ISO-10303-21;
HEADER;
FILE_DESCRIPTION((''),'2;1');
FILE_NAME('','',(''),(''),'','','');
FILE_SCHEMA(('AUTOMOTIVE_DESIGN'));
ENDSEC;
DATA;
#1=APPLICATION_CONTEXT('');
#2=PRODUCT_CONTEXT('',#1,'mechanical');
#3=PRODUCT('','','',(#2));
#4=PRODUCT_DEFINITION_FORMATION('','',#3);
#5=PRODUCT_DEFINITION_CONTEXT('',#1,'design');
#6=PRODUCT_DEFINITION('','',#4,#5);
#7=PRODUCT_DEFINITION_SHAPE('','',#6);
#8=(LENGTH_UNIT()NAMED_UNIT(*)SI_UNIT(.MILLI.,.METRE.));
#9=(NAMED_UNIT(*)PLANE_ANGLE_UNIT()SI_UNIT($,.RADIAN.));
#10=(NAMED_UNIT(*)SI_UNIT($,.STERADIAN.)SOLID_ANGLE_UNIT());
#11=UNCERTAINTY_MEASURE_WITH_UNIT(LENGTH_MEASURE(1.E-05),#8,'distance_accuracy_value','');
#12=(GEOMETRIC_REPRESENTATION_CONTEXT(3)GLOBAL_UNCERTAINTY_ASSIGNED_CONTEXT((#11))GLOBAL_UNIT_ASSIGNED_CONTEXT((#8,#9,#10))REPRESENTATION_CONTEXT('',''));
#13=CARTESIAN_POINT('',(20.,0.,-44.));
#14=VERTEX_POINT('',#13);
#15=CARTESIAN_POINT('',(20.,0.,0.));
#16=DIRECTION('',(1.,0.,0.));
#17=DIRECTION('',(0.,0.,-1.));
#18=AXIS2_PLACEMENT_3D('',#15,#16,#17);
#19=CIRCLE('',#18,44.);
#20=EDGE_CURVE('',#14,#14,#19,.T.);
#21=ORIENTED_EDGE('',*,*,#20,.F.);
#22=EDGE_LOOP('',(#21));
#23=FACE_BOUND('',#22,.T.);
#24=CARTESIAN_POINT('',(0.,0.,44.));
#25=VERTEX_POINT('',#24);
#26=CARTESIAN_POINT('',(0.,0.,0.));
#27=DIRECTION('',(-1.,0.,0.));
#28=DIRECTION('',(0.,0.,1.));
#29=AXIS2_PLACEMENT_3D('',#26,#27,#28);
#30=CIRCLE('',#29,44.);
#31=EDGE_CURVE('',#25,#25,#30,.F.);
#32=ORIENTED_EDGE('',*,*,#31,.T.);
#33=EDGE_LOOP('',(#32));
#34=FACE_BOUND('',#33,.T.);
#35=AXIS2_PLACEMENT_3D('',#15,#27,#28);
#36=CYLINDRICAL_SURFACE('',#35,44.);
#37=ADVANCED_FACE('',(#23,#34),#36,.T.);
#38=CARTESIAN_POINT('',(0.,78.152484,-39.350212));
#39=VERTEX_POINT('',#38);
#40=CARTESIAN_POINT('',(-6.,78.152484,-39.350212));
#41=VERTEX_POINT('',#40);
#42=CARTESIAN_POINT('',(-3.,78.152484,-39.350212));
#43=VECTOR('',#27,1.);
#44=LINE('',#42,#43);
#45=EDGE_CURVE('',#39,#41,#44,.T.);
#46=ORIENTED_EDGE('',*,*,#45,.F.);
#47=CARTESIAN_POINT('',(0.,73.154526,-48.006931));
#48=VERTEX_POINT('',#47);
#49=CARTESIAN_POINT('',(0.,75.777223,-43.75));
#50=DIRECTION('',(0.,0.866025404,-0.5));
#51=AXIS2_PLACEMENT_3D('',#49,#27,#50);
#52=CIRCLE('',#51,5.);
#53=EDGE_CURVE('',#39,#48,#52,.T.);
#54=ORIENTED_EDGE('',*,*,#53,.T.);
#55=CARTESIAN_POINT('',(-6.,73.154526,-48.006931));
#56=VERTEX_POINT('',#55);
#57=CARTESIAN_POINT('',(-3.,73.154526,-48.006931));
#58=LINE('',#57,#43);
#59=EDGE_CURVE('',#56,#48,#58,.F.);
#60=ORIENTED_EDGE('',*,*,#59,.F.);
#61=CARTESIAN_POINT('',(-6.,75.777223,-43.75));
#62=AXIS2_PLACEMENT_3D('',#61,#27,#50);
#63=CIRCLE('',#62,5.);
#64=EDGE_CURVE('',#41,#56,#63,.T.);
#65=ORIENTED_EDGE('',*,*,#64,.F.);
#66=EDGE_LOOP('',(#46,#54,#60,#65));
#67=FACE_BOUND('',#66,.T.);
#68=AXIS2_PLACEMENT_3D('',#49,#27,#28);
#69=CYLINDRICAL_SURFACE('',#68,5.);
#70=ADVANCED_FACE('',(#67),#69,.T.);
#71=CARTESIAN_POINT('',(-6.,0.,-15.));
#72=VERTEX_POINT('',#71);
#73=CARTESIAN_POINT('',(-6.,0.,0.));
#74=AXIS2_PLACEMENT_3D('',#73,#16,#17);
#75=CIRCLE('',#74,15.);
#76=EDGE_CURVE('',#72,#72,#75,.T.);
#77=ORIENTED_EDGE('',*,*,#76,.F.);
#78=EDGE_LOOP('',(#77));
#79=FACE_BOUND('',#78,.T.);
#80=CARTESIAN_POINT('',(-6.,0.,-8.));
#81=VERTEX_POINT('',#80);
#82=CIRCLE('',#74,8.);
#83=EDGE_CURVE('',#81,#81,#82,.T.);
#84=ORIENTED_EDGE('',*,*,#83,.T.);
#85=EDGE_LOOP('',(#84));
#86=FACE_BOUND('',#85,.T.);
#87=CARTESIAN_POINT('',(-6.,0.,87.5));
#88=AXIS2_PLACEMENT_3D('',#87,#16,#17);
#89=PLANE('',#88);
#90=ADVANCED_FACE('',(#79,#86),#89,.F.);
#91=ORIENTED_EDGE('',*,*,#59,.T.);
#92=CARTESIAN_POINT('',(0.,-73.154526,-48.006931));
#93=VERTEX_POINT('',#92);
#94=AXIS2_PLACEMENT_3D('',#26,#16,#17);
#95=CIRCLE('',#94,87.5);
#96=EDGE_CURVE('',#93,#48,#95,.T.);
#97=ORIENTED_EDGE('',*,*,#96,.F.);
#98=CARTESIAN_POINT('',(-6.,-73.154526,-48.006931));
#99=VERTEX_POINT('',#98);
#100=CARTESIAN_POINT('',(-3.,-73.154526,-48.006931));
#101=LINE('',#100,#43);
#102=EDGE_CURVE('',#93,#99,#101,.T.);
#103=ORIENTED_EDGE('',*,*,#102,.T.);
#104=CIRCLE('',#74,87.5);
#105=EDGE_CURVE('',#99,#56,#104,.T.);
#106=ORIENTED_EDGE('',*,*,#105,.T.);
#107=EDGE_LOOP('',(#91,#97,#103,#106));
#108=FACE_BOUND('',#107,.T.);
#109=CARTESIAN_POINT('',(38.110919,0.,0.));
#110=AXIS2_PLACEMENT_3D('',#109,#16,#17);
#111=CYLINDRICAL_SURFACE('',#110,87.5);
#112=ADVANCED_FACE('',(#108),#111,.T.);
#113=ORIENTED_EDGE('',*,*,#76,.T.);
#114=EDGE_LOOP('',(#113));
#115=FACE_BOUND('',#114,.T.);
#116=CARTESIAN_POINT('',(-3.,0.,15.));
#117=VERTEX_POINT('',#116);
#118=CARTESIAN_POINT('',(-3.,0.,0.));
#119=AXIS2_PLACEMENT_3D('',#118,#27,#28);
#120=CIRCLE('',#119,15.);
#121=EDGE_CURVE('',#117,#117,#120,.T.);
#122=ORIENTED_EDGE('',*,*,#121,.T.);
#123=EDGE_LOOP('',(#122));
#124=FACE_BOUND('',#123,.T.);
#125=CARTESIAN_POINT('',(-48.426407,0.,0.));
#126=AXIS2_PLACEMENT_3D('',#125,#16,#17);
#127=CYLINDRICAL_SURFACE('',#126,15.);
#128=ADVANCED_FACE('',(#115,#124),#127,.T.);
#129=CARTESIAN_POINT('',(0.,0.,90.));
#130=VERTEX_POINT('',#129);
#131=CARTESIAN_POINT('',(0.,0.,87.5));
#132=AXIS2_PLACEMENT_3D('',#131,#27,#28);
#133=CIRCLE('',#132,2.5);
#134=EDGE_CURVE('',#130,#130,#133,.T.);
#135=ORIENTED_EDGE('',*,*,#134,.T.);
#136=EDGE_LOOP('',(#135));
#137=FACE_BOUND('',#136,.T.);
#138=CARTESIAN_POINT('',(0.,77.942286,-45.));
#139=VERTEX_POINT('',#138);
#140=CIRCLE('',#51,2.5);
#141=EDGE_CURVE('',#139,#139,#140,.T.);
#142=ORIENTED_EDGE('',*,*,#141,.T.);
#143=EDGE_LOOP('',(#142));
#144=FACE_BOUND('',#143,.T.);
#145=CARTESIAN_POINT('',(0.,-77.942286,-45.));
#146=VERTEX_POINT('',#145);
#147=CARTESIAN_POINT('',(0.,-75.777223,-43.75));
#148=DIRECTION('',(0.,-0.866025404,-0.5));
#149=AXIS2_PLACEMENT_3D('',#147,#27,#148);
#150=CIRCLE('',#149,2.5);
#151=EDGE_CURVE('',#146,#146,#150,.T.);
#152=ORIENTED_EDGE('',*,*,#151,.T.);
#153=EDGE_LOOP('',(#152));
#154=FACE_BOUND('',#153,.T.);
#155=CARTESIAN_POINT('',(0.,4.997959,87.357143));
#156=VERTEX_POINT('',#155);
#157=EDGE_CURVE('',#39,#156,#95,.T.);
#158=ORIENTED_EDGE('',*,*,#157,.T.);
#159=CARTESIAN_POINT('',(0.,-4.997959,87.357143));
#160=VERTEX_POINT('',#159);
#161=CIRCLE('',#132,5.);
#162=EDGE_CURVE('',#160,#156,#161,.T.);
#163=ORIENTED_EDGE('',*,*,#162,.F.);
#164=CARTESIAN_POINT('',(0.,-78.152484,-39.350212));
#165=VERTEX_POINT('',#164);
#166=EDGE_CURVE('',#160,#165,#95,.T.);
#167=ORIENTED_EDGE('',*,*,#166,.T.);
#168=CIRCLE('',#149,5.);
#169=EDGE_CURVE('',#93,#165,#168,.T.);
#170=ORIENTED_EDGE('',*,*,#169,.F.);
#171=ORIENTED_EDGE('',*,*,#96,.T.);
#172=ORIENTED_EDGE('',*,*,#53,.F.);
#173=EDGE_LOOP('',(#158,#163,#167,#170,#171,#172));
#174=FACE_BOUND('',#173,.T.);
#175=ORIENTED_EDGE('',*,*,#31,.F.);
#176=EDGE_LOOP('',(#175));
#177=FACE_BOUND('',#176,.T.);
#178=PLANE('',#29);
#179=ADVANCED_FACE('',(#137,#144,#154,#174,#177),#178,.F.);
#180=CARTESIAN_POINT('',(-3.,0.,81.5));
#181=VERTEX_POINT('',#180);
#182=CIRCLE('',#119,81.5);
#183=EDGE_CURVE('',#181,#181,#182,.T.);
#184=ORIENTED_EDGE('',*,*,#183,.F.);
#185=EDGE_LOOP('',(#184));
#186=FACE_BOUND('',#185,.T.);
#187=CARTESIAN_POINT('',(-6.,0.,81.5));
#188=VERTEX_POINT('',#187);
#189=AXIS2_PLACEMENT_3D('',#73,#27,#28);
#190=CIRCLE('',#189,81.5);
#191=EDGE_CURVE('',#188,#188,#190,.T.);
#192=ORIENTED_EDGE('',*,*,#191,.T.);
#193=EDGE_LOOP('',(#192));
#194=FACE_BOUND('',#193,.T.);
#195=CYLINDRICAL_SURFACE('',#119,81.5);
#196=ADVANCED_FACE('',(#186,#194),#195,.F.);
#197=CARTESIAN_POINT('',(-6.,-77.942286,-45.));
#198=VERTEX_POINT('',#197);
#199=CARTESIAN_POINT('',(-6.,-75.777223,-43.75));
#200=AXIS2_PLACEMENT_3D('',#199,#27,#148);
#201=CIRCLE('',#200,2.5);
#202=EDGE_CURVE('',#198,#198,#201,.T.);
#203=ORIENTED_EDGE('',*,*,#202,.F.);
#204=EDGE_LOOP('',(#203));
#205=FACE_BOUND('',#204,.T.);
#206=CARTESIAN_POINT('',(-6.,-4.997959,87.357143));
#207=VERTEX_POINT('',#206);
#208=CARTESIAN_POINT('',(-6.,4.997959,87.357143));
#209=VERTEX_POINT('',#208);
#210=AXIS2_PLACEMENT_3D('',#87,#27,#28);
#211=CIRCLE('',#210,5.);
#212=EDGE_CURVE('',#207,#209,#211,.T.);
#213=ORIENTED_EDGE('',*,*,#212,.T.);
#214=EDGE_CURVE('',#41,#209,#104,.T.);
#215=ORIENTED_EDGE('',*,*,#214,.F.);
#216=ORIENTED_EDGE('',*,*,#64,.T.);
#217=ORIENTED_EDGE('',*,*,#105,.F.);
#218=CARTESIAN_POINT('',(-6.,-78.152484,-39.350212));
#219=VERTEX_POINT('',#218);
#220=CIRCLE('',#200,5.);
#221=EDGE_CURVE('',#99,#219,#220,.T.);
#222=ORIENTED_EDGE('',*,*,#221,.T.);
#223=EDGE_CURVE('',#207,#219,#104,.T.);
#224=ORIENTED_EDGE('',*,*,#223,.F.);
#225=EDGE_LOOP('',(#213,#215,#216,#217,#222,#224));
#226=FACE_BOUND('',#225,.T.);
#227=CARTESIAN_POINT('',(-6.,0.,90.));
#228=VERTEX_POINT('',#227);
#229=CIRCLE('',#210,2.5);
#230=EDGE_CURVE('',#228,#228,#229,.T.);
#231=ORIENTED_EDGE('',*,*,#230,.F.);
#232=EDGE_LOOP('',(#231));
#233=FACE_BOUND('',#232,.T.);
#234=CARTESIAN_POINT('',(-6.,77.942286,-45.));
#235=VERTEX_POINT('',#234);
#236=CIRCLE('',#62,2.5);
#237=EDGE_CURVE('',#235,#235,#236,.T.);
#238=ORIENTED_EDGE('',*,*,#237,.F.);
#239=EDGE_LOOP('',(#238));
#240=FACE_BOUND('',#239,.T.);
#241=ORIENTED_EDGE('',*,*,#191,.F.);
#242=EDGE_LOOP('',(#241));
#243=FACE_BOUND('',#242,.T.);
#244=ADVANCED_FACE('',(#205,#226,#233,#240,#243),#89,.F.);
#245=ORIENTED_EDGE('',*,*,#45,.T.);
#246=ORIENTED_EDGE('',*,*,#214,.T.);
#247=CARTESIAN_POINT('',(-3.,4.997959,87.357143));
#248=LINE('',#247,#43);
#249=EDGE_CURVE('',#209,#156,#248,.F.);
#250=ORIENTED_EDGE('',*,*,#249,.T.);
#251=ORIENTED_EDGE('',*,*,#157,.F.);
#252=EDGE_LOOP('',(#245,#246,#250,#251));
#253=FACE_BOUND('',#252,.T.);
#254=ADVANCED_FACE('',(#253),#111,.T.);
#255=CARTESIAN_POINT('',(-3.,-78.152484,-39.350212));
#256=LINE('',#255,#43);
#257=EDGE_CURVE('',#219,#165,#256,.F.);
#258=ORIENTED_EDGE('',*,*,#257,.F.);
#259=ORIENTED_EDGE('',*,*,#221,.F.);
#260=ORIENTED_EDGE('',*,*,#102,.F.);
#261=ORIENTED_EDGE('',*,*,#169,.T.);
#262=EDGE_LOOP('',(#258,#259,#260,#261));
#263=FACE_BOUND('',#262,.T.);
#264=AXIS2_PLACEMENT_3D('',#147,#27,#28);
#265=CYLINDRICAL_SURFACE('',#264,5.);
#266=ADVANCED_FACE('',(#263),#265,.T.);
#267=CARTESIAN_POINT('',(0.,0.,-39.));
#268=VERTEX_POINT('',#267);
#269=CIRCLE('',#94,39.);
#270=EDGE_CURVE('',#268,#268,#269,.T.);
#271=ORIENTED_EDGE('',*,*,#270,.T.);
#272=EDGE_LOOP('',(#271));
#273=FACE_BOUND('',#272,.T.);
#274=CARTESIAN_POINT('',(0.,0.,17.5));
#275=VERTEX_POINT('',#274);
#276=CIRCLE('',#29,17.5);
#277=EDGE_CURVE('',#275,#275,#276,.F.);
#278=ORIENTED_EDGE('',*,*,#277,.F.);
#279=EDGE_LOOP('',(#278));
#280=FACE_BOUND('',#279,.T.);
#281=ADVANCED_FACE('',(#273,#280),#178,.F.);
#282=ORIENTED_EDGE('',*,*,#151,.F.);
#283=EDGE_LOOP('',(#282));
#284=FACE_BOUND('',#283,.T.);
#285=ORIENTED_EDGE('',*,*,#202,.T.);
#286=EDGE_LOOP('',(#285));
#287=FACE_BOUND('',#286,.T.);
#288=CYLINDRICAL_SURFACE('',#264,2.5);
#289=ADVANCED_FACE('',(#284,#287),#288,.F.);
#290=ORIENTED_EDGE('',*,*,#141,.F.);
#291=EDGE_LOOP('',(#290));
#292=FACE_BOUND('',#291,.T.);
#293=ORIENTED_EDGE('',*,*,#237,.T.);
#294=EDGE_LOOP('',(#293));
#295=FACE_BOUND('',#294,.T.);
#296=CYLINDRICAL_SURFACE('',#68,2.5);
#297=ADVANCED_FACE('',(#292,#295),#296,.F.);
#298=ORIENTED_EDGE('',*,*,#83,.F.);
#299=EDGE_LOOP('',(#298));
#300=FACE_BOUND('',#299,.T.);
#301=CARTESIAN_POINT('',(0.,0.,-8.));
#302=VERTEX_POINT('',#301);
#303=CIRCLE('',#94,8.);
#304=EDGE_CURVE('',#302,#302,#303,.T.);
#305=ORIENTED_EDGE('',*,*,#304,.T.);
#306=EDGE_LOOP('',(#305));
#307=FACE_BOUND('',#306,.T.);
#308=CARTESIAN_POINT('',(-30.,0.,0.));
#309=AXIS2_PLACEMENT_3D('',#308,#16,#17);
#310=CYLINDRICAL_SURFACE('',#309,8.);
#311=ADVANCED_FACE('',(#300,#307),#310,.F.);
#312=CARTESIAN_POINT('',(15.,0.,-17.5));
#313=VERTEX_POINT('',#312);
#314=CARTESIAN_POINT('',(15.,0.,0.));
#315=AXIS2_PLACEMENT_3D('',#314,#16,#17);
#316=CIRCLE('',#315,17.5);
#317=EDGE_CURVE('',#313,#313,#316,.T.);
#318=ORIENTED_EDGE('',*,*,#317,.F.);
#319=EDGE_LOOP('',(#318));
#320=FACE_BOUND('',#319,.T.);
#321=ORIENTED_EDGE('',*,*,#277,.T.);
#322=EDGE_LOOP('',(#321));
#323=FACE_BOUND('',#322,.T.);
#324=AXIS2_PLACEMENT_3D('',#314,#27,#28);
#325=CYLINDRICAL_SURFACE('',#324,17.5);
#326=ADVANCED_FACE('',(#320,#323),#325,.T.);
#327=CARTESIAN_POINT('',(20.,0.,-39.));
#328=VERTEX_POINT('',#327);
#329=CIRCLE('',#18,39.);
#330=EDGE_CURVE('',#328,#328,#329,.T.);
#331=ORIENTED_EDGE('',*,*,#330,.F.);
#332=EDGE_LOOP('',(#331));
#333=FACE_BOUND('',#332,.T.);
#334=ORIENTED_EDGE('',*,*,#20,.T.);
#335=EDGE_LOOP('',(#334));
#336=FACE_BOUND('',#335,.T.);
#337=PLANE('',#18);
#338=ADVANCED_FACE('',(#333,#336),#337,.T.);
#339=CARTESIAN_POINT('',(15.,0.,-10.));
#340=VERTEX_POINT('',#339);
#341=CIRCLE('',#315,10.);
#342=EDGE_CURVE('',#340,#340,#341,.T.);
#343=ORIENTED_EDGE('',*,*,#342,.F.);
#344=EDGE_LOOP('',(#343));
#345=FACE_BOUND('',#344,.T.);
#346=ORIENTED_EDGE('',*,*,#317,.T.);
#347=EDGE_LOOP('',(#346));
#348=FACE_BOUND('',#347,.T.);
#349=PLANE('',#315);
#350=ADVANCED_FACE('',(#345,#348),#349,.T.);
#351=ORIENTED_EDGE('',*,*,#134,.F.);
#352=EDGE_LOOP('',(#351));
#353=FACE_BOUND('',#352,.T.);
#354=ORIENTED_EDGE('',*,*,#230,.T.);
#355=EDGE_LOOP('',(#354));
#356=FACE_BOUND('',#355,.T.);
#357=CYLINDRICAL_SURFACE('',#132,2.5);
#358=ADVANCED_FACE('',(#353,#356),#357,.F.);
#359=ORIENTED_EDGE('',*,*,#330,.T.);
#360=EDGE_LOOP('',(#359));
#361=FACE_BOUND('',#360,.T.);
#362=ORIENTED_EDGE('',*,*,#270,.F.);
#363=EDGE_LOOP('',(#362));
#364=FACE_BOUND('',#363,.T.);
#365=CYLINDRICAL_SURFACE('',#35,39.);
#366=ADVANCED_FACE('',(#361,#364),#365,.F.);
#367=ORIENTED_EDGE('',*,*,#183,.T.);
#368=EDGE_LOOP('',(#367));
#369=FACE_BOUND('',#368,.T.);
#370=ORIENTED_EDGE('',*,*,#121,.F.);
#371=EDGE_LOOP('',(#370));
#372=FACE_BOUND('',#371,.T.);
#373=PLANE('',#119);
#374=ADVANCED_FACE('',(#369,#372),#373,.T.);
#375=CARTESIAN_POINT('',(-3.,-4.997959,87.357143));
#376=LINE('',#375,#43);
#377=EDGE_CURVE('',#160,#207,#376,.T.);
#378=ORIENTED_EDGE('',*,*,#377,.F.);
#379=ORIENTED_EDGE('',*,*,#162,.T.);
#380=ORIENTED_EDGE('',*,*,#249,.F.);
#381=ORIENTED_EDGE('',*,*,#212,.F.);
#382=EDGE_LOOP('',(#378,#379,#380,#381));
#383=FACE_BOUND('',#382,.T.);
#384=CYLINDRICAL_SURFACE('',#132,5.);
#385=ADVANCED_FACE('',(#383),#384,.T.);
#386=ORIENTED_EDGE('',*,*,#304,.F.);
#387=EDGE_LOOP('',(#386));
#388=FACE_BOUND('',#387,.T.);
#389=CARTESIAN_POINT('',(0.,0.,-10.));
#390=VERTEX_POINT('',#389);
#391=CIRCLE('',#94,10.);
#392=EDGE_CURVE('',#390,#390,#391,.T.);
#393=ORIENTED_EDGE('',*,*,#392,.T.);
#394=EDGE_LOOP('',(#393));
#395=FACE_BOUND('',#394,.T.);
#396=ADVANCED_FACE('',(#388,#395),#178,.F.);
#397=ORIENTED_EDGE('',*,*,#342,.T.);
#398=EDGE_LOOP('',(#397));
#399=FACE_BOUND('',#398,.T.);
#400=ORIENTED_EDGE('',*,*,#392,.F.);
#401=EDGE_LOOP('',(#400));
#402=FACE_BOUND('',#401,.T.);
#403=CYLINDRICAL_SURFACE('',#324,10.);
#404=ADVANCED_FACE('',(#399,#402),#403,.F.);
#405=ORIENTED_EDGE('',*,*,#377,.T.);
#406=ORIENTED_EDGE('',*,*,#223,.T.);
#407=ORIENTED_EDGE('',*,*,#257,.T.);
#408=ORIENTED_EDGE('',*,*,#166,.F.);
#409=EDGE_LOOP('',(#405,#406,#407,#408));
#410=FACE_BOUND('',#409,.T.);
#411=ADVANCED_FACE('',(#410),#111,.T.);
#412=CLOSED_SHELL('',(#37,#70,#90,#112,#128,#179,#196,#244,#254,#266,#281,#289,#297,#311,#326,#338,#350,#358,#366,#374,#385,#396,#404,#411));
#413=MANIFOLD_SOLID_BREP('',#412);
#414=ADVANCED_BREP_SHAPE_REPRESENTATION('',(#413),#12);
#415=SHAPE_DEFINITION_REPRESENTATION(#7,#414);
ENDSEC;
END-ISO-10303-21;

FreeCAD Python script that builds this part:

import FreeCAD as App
import Part
import Sketcher

V = App.Vector


def add_polygon(sketch, points):
    """Adds a closed chain of lines whose ends are joined by coincident constraints."""
    first, n = sketch.GeometryCount, len(points)
    for a, b in zip(points, points[1:] + points[:1]):
        sketch.addGeometry(Part.LineSegment(App.Vector(*a, 0), App.Vector(*b, 0)), False)
    for i in range(n):
        sketch.addConstraint(Sketcher.Constraint("Coincident", first + i, 2, first + (i + 1) % n, 1))

doc = App.newDocument("Part")
body = doc.addObject("PartDesign::Body", "Body")

sketch1 = body.newObject("Sketcher::SketchObject", "Sketch")
sketch1.AttachmentSupport = (doc.getObject("XZ_Plane"), [""])
sketch1.MapMode = "FlatFace"
add_polygon(sketch1, [(0, 88), (0, 0), (-6, 0), (-6, 88)])
sketch1.addConstraint(Sketcher.Constraint("Vertical", 0))
sketch1.addConstraint(Sketcher.Constraint("Horizontal", 1))
sketch1.addConstraint(Sketcher.Constraint("Vertical", 2))
sketch1.addConstraint(Sketcher.Constraint("Horizontal", 3))
sketch1.addConstraint(Sketcher.Constraint("Coincident", 0, 2, -1, 1))
sketch1.addConstraint(Sketcher.Constraint("DistanceX", 1, 2, 1, 1, 6.0))
sketch1.addConstraint(Sketcher.Constraint("DistanceY", 0, 2, 0, 1, 87.5))
revolution = body.newObject("PartDesign::Revolution", "Revolution")
revolution.Profile = sketch1
revolution.ReferenceAxis = (sketch1, ["H_Axis"])
revolution.Angle = 360

sketch2 = body.newObject("Sketcher::SketchObject", "Sketch001")
sketch2.AttachmentSupport = (doc.getObject("YZ_Plane"), [""])
sketch2.MapMode = "FlatFace"
sketch2.addGeometry(Part.Circle(V(0, 0, 0), V(0, 0, 1), 8), False)
sketch2.addConstraint(Sketcher.Constraint("Coincident", 0, 3, -1, 1))
sketch2.addConstraint(Sketcher.Constraint("Diameter", 0, 16.0))
pocket1 = body.newObject("PartDesign::Pocket", "Pocket")
pocket1.Profile = sketch2
pocket1.Length = 30

sketch3 = body.newObject("Sketcher::SketchObject", "Sketch002")
sketch3.AttachmentSupport = (doc.getObject("YZ_Plane"), [""])
sketch3.MapMode = "FlatFace"
sketch3.AttachmentOffset = App.Placement(V(0, 0, -6), App.Rotation())
sketch3.addGeometry(Part.Circle(V(0, 88, 0), V(0, 0, 1), 5), False)
sketch3.addConstraint(Sketcher.Constraint("PointOnObject", 0, 3, -2))
sketch3.addConstraint(Sketcher.Constraint("Diameter", 0, 10.0))
sketch3.addConstraint(Sketcher.Constraint("DistanceY", -1, 1, 0, 3, 87.5))
pad1 = body.newObject("PartDesign::Pad", "Pad")
pad1.Profile = sketch3
pad1.Length = 6
doc.recompute()

polarpattern = body.newObject("PartDesign::PolarPattern", "PolarPattern")
polarpattern.Originals = [pad1]
polarpattern.Axis = (doc.getObject("X_Axis"), [""])
polarpattern.Angle = 360
polarpattern.Occurrences = 3
body.Tip = polarpattern

sketch4 = body.newObject("Sketcher::SketchObject", "Sketch003")
sketch4.AttachmentSupport = (doc.getObject("YZ_Plane"), [""])
sketch4.MapMode = "FlatFace"
sketch4.AttachmentOffset = App.Placement(V(0, 0, -6), App.Rotation())
sketch4.addGeometry(Part.Circle(V(0, 87.5, 0), V(0, 0, 1), 2.5), False)
sketch4.addConstraint(Sketcher.Constraint("PointOnObject", 0, 3, -2))
sketch4.addConstraint(Sketcher.Constraint("Diameter", 0, 5.0))
sketch4.addConstraint(Sketcher.Constraint("DistanceY", -1, 1, 0, 3, 87.5))
pocket2 = body.newObject("PartDesign::Pocket", "Pocket001")
pocket2.Profile = sketch4
pocket2.Length = 6
pocket2.Reversed = True
doc.recompute()

polarpattern2 = body.newObject("PartDesign::PolarPattern", "PolarPattern001")
polarpattern2.Originals = [pocket2]
polarpattern2.Axis = (doc.getObject("X_Axis"), [""])
polarpattern2.Angle = 360
polarpattern2.Occurrences = 3
body.Tip = polarpattern2

sketch5 = body.newObject("Sketcher::SketchObject", "Sketch004")
sketch5.AttachmentSupport = (doc.getObject("YZ_Plane"), [""])
sketch5.MapMode = "FlatFace"
sketch5.addGeometry(Part.Circle(V(0, 0, 0), V(0, 0, 1), 18), False)
sketch5.addGeometry(Part.Circle(V(0, 0, 0), V(0, 0, 1), 10), False)
sketch5.addConstraint(Sketcher.Constraint("Coincident", 0, 3, -1, 1))
sketch5.addConstraint(Sketcher.Constraint("Coincident", 1, 3, -1, 1))
sketch5.addConstraint(Sketcher.Constraint("Diameter", 0, 35.0))
sketch5.addConstraint(Sketcher.Constraint("Diameter", 1, 20.0))
pad2 = body.newObject("PartDesign::Pad", "Pad001")
pad2.Profile = sketch5
pad2.Length = 15

sketch6 = body.newObject("Sketcher::SketchObject", "Sketch005")
sketch6.AttachmentSupport = (doc.getObject("YZ_Plane"), [""])
sketch6.MapMode = "FlatFace"
sketch6.addGeometry(Part.Circle(V(0, 0, 0), V(0, 0, 1), 44), False)
sketch6.addGeometry(Part.Circle(V(0, 0, 0), V(0, 0, 1), 39), False)
sketch6.addConstraint(Sketcher.Constraint("Coincident", 0, 3, -1, 1))
sketch6.addConstraint(Sketcher.Constraint("Coincident", 1, 3, -1, 1))
sketch6.addConstraint(Sketcher.Constraint("Diameter", 0, 88.0))
sketch6.addConstraint(Sketcher.Constraint("Diameter", 1, 78.0))
pad3 = body.newObject("PartDesign::Pad", "Pad002")
pad3.Profile = sketch6
pad3.Length = 20

sketch7 = body.newObject("Sketcher::SketchObject", "Sketch006")
sketch7.AttachmentSupport = (doc.getObject("YZ_Plane"), [""])
sketch7.MapMode = "FlatFace"
sketch7.AttachmentOffset = App.Placement(V(0, 0, -6), App.Rotation())
sketch7.addGeometry(Part.Circle(V(0, 0, 0), V(0, 0, 1), 82), False)
sketch7.addConstraint(Sketcher.Constraint("Coincident", 0, 3, -1, 1))
sketch7.addConstraint(Sketcher.Constraint("Diameter", 0, 163.0))
pocket3 = body.newObject("PartDesign::Pocket", "Pocket002")
pocket3.Profile = sketch7
pocket3.Length = 3
pocket3.Reversed = True

sketch8 = body.newObject("Sketcher::SketchObject", "Sketch007")
sketch8.AttachmentSupport = (doc.getObject("YZ_Plane"), [""])
sketch8.MapMode = "FlatFace"
sketch8.AttachmentOffset = App.Placement(V(0, 0, -3), App.Rotation())
sketch8.addGeometry(Part.Circle(V(0, 0, 0), V(0, 0, 1), 15), False)
sketch8.addGeometry(Part.Circle(V(0, 0, 0), V(0, 0, 1), 8), False)
sketch8.addConstraint(Sketcher.Constraint("Coincident", 0, 3, -1, 1))
sketch8.addConstraint(Sketcher.Constraint("Coincident", 1, 3, -1, 1))
sketch8.addConstraint(Sketcher.Constraint("Diameter", 0, 30.0))
sketch8.addConstraint(Sketcher.Constraint("Diameter", 1, 16.0))
pad4 = body.newObject("PartDesign::Pad", "Pad003")
pad4.Profile = sketch8
pad4.Length = 3
pad4.Reversed = True

doc.recompute()
